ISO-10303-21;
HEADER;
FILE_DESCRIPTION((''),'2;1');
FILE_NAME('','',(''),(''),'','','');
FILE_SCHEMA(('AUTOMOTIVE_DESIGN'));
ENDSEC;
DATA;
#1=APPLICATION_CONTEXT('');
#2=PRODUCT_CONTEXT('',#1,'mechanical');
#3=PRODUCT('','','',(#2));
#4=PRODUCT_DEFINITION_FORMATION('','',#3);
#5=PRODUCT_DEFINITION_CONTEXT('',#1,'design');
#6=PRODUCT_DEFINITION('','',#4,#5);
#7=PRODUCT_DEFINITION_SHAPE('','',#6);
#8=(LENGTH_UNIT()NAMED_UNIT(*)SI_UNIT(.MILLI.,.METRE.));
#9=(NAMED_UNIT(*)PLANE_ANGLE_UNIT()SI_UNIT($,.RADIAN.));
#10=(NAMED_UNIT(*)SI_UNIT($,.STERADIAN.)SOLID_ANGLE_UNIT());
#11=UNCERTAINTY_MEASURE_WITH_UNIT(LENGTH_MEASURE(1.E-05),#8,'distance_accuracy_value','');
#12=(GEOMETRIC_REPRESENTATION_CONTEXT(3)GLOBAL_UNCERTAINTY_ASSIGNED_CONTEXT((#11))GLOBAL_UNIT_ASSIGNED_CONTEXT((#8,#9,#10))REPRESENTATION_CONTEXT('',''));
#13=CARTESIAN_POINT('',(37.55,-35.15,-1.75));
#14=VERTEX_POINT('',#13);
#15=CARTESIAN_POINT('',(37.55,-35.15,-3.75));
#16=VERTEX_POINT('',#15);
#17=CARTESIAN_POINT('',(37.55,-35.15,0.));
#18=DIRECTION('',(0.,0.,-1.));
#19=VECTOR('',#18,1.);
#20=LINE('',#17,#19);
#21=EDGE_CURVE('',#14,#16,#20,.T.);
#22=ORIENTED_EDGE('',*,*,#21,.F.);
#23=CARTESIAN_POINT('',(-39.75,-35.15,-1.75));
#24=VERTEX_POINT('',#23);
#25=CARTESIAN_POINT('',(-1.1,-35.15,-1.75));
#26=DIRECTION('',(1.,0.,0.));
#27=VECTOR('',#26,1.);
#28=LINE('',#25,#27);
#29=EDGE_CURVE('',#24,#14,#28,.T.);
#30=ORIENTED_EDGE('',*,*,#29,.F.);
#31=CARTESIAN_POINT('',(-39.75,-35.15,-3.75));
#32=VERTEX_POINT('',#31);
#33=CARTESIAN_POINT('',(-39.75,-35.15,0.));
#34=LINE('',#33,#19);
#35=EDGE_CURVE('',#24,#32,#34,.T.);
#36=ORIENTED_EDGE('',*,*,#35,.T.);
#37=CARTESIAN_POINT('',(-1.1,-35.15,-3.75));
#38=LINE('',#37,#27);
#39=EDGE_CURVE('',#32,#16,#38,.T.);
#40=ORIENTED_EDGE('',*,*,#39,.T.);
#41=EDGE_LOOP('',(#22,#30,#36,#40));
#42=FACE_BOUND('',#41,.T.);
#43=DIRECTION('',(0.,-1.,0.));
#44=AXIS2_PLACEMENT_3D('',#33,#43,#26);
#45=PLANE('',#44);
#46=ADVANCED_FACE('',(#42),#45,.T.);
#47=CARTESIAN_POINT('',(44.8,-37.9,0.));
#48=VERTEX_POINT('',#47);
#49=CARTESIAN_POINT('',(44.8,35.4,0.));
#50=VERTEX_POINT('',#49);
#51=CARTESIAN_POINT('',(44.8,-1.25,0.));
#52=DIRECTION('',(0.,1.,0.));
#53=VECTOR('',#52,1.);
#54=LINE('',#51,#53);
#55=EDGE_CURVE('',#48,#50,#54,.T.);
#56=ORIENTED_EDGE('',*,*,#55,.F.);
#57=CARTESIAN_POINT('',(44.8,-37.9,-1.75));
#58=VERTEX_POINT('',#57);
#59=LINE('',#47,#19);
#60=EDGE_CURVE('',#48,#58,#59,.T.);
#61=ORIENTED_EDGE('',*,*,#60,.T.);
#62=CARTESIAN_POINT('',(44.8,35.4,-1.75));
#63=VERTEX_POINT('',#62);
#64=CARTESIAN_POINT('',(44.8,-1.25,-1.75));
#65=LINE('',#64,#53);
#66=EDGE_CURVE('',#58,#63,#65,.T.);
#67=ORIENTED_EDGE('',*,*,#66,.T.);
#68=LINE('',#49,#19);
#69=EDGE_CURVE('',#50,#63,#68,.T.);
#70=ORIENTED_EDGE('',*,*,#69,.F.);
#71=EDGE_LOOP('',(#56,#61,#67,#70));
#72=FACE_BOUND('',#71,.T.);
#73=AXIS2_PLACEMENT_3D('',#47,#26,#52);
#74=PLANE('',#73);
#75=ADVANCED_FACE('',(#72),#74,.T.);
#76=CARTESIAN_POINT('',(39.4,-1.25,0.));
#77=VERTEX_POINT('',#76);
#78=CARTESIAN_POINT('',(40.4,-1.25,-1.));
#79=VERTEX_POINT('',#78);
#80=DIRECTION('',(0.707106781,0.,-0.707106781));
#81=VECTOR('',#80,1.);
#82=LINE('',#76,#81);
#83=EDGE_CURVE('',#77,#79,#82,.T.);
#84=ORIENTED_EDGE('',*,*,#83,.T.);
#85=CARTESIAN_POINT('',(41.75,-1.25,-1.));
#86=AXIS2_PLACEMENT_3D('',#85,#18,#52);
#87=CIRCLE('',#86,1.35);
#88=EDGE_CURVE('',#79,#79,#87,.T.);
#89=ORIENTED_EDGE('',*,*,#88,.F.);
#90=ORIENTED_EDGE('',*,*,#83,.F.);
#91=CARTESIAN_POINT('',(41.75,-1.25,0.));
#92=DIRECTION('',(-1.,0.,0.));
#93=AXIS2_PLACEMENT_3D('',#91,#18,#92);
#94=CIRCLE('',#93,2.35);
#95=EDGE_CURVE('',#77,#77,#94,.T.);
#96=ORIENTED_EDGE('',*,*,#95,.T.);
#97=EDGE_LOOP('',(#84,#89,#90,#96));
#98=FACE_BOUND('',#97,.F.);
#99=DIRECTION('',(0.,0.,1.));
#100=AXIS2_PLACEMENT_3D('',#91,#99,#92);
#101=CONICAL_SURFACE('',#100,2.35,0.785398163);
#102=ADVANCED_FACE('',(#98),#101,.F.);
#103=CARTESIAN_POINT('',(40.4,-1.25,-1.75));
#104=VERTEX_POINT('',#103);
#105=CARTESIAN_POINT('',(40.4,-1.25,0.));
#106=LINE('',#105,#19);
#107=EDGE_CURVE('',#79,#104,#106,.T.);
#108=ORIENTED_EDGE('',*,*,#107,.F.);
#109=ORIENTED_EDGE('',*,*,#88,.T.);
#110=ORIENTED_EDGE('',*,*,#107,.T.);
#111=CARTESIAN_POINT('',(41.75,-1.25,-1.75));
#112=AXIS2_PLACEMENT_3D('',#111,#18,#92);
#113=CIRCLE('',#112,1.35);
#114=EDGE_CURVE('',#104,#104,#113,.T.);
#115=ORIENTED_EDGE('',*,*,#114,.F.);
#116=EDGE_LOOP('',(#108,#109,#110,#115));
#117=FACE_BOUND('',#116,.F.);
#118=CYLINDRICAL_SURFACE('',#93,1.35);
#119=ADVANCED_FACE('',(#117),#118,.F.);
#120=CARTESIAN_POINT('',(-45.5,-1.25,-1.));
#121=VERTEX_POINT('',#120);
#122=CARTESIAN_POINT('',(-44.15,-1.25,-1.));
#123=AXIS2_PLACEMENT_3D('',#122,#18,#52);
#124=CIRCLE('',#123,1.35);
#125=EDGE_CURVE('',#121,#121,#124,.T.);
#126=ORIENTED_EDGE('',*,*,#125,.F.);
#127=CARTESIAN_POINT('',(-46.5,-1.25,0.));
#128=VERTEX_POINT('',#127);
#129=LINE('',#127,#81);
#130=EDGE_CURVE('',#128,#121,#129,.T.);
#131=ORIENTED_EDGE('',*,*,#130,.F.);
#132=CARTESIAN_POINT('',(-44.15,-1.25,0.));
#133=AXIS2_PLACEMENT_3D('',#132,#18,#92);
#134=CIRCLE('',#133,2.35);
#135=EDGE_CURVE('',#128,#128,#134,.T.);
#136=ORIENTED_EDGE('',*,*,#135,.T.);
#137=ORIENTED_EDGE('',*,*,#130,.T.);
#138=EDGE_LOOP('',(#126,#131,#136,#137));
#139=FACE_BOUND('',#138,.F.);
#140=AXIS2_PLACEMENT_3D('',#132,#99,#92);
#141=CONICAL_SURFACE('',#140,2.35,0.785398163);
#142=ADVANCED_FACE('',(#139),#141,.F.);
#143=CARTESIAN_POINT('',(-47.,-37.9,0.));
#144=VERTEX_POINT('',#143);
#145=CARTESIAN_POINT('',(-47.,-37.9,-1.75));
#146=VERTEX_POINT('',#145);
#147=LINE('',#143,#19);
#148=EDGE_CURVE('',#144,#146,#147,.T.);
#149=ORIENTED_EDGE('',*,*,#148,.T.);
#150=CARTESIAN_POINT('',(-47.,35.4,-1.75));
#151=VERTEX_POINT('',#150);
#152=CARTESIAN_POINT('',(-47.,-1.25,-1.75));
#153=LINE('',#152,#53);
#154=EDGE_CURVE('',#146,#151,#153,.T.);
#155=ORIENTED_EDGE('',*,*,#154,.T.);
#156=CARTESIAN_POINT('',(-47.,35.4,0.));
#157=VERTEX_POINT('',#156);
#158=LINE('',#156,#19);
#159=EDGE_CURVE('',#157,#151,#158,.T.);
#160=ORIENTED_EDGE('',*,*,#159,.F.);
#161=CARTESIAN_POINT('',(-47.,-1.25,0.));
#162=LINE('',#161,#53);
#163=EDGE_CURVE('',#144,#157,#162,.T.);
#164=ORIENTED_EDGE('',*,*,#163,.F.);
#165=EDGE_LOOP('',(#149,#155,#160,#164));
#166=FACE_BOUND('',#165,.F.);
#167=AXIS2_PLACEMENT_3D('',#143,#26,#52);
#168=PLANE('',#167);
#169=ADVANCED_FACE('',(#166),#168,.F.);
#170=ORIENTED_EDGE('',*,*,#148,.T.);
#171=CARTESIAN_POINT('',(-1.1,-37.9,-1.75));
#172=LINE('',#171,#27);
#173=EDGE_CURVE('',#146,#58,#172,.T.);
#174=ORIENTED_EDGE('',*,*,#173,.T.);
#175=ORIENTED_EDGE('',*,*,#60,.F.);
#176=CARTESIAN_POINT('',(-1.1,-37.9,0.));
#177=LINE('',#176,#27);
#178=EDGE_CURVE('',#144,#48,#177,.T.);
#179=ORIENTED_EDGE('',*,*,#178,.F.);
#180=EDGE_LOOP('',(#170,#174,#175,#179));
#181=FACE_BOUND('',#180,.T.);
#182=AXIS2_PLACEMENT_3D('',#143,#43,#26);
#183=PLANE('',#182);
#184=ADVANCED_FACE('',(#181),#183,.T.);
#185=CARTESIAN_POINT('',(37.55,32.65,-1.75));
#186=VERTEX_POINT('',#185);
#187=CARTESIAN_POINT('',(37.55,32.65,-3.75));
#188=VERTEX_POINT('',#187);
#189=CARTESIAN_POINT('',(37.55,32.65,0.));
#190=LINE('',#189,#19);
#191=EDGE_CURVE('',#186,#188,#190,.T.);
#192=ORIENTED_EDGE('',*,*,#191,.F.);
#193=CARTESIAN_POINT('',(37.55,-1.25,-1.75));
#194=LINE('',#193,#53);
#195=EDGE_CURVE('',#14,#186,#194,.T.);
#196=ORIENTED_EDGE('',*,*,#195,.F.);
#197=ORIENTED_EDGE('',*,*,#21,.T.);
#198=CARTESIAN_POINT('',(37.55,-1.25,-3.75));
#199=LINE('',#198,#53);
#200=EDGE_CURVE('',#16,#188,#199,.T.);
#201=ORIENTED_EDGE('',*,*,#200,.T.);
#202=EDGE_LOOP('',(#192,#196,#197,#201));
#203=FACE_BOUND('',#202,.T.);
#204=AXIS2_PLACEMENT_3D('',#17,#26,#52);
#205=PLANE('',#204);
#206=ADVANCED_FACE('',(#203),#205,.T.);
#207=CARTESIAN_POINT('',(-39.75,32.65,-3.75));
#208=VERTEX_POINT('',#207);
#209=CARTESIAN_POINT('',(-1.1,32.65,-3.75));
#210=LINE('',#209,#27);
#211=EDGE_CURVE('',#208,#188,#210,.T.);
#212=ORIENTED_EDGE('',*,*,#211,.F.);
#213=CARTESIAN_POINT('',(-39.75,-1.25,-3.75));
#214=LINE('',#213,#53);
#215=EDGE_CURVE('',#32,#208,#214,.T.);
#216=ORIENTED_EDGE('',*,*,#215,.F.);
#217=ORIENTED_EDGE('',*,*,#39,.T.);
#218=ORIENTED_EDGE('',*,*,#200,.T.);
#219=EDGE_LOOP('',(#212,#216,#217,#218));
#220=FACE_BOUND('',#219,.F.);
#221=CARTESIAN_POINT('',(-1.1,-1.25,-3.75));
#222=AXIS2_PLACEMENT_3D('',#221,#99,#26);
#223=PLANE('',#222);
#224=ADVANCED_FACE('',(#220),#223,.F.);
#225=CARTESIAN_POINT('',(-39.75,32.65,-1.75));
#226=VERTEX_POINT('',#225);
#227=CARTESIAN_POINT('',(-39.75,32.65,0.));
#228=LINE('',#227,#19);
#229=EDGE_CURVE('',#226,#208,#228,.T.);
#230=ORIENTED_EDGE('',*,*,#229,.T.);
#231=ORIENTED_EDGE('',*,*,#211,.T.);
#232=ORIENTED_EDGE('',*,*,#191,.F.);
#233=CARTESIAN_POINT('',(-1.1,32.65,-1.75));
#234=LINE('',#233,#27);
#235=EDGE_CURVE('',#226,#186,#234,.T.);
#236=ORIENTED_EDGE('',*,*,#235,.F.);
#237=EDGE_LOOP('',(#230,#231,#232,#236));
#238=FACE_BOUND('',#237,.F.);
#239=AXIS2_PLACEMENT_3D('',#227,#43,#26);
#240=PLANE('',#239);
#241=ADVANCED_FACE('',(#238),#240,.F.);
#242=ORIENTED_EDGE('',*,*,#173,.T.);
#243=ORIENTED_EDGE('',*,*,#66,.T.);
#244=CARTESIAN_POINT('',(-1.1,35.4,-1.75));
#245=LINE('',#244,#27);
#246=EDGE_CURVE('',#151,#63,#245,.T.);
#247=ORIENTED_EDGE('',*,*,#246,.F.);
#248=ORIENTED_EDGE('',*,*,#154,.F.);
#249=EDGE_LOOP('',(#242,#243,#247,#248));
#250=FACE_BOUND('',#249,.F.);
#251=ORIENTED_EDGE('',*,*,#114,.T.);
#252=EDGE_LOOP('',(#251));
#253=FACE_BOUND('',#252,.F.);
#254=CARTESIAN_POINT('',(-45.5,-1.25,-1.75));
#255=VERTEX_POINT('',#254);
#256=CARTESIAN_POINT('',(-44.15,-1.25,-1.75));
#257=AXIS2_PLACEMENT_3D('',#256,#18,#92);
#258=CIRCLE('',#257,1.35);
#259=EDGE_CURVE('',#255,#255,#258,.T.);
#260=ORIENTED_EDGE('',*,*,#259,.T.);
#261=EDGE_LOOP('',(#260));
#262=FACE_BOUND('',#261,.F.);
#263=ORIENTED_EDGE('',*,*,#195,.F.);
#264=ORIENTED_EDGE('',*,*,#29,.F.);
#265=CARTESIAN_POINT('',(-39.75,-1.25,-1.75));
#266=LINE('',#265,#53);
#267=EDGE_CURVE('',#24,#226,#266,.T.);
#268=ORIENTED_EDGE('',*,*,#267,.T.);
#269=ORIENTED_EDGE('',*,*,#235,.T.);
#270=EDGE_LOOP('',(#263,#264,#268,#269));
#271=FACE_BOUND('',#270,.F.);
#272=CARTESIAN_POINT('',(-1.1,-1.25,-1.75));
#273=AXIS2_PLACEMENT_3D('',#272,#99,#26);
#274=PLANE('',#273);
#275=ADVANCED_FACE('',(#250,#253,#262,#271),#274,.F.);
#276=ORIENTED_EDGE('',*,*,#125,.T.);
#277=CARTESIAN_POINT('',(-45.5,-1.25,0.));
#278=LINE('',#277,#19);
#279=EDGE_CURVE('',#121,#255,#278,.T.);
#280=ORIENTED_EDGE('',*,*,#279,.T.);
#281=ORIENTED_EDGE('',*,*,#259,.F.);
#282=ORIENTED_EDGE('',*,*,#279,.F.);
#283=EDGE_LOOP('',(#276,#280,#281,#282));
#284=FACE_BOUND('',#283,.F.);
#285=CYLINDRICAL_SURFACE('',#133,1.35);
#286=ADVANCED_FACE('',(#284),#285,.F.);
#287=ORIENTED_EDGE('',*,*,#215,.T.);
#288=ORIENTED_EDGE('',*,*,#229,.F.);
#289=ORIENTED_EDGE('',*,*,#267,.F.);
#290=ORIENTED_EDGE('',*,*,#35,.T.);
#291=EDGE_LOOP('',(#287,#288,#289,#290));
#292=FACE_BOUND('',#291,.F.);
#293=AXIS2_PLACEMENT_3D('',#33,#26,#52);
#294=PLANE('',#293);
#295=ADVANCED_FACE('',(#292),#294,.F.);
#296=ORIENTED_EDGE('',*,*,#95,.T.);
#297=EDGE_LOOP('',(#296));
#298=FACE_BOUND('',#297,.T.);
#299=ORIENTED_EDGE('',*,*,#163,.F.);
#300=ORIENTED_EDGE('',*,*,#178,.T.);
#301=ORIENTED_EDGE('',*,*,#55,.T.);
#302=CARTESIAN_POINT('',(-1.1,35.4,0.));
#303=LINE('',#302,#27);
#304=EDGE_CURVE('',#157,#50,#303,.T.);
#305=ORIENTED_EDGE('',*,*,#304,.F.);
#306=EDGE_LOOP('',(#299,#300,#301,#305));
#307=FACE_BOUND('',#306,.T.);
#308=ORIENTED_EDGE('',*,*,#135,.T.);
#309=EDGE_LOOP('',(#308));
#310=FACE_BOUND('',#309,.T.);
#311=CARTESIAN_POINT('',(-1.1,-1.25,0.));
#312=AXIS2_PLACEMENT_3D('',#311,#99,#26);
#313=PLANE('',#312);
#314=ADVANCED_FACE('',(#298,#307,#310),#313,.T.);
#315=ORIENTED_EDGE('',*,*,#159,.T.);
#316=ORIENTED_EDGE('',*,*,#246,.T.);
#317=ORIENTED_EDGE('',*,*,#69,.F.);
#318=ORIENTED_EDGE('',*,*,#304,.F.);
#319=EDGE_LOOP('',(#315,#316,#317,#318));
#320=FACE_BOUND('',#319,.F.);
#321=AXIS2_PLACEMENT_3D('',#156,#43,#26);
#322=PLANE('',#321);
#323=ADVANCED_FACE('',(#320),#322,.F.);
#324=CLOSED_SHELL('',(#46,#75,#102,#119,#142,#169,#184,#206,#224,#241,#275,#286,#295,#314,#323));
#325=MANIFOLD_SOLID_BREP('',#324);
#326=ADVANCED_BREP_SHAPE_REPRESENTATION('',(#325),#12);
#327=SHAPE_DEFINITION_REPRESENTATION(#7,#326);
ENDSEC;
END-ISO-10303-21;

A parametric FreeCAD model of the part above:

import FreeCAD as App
import Part
import Sketcher

doc = App.newDocument("Part")
body = doc.addObject("PartDesign::Body", "Body")

sketch1 = doc.addObject("Sketcher::SketchObject", "Sketch")
body.addObject(sketch1)
sketch1.AttachmentSupport = (doc.XY_Plane, [""])
sketch1.MapMode = "FlatFace"
sketch1.addGeometry(Part.LineSegment(App.Vector(-47, 35, 0), App.Vector(-47, -38, 0)), False)
sketch1.addGeometry(Part.LineSegment(App.Vector(-47, -38, 0), App.Vector(45, -38, 0)), False)
sketch1.addGeometry(Part.LineSegment(App.Vector(45, -38, 0), App.Vector(45, 35, 0)), False)
sketch1.addGeometry(Part.LineSegment(App.Vector(45, 35, 0), App.Vector(-47, 35, 0)), False)
sketch1.addGeometry(Part.LineSegment(App.Vector(38, -35, 0), App.Vector(-40, -35, 0)), False)
sketch1.addGeometry(Part.LineSegment(App.Vector(-40, -35, 0), App.Vector(-40, 33, 0)), False)
sketch1.addGeometry(Part.LineSegment(App.Vector(-40, 33, 0), App.Vector(38, 33, 0)), False)
sketch1.addGeometry(Part.LineSegment(App.Vector(38, 33, 0), App.Vector(38, -35, 0)), False)
sketch1.addConstraint(Sketcher.Constraint("Coincident", 0, 2, 1, 1))
sketch1.addConstraint(Sketcher.Constraint("Coincident", 1, 2, 2, 1))
sketch1.addConstraint(Sketcher.Constraint("Coincident", 2, 2, 3, 1))
sketch1.addConstraint(Sketcher.Constraint("Coincident", 3, 2, 0, 1))
sketch1.addConstraint(Sketcher.Constraint("Coincident", 4, 2, 5, 1))
sketch1.addConstraint(Sketcher.Constraint("Coincident", 5, 2, 6, 1))
sketch1.addConstraint(Sketcher.Constraint("Coincident", 6, 2, 7, 1))
sketch1.addConstraint(Sketcher.Constraint("Coincident", 7, 2, 4, 1))
sketch1.addConstraint(Sketcher.Constraint("Vertical", 0))
sketch1.addConstraint(Sketcher.Constraint("Horizontal", 1))
sketch1.addConstraint(Sketcher.Constraint("Vertical", 2))
sketch1.addConstraint(Sketcher.Constraint("Horizontal", 3))
sketch1.addConstraint(Sketcher.Constraint("Horizontal", 4))
sketch1.addConstraint(Sketcher.Constraint("Vertical", 5))
sketch1.addConstraint(Sketcher.Constraint("Horizontal", 6))
sketch1.addConstraint(Sketcher.Constraint("Vertical", 7))
sketch1.addConstraint(Sketcher.Constraint("DistanceX", 1, 1, 1, 2, 91.8))
sketch1.addConstraint(Sketcher.Constraint("DistanceX", 4, 2, 4, 1, 77.3))
sketch1.addConstraint(Sketcher.Constraint("DistanceY", 0, 2, 0, 1, 73.3))
sketch1.addConstraint(Sketcher.Constraint("DistanceY", 5, 1, 5, 2, 67.8))
sketch1.addConstraint(Sketcher.Constraint("DistanceX", 0, 2, -1, 1, 47.0))
sketch1.addConstraint(Sketcher.Constraint("DistanceY", 0, 2, -1, 1, 37.9))
sketch1.addConstraint(Sketcher.Constraint("DistanceX", 4, 2, -1, 1, 39.75))
sketch1.addConstraint(Sketcher.Constraint("DistanceY", 4, 2, -1, 1, 35.15))
pad1 = doc.addObject("PartDesign::Pad", "Pad")
body.addObject(pad1)
pad1.Profile = sketch1
pad1.Length = 1.75
pad1.Reversed = True

sketch2 = doc.addObject("Sketcher::SketchObject", "Sketch001")
body.addObject(sketch2)
sketch2.AttachmentSupport = (doc.XY_Plane, [""])
sketch2.MapMode = "FlatFace"
sketch2.addGeometry(Part.LineSegment(App.Vector(-40, 33, 0), App.Vector(-40, -35, 0)), False)
sketch2.addGeometry(Part.LineSegment(App.Vector(-40, -35, 0), App.Vector(38, -35, 0)), False)
sketch2.addGeometry(Part.LineSegment(App.Vector(38, -35, 0), App.Vector(38, 33, 0)), False)
sketch2.addGeometry(Part.LineSegment(App.Vector(38, 33, 0), App.Vector(-40, 33, 0)), False)
sketch2.addConstraint(Sketcher.Constraint("Coincident", 0, 2, 1, 1))
sketch2.addConstraint(Sketcher.Constraint("Coincident", 1, 2, 2, 1))
sketch2.addConstraint(Sketcher.Constraint("Coincident", 2, 2, 3, 1))
sketch2.addConstraint(Sketcher.Constraint("Coincident", 3, 2, 0, 1))
sketch2.addConstraint(Sketcher.Constraint("Vertical", 0))
sketch2.addConstraint(Sketcher.Constraint("Horizontal", 1))
sketch2.addConstraint(Sketcher.Constraint("Vertical", 2))
sketch2.addConstraint(Sketcher.Constraint("Horizontal", 3))
sketch2.addConstraint(Sketcher.Constraint("DistanceX", 1, 1, 1, 2, 77.3))
sketch2.addConstraint(Sketcher.Constraint("DistanceY", 0, 2, 0, 1, 67.8))
sketch2.addConstraint(Sketcher.Constraint("DistanceX", 0, 2, -1, 1, 39.75))
sketch2.addConstraint(Sketcher.Constraint("DistanceY", 0, 2, -1, 1, 35.15))
pad2 = doc.addObject("PartDesign::Pad", "Pad001")
body.addObject(pad2)
pad2.Profile = sketch2
pad2.Length = 3.75
pad2.Reversed = True

sketch3 = doc.addObject("Sketcher::SketchObject", "Sketch002")
body.addObject(sketch3)
sketch3.AttachmentSupport = (doc.XY_Plane, [""])
sketch3.MapMode = "FlatFace"
sketch3.addGeometry(Part.Circle(App.Vector(-44.1, -1.2, 0), App.Vector(0, 0, 1), 1.4), False)
sketch3.addGeometry(Part.Circle(App.Vector(41.8, -1.2, 0), App.Vector(0, 0, 1), 1.4), False)
sketch3.addConstraint(Sketcher.Constraint("Equal", 0, 1))
sketch3.addConstraint(Sketcher.Constraint("Horizontal", 0, 3, 1, 3))
sketch3.addConstraint(Sketcher.Constraint("Diameter", 0, 2.7))
sketch3.addConstraint(Sketcher.Constraint("DistanceX", 0, 3, 1, 3, 85.9))
sketch3.addConstraint(Sketcher.Constraint("DistanceX", 0, 3, -1, 1, 44.15))
sketch3.addConstraint(Sketcher.Constraint("DistanceY", 0, 3, -1, 1, 1.25))
doc.recompute()
hole = doc.addObject("PartDesign::Hole", "Hole")
body.addObject(hole)
hole.Profile = sketch3
hole.ThreadType = "None"
hole.Diameter = 2.7
hole.DepthType = "ThroughAll"
hole.HoleCutType = "Countersink"
hole.HoleCutDiameter = 4.7
hole.HoleCutCountersinkAngle = 90

doc.recompute()
